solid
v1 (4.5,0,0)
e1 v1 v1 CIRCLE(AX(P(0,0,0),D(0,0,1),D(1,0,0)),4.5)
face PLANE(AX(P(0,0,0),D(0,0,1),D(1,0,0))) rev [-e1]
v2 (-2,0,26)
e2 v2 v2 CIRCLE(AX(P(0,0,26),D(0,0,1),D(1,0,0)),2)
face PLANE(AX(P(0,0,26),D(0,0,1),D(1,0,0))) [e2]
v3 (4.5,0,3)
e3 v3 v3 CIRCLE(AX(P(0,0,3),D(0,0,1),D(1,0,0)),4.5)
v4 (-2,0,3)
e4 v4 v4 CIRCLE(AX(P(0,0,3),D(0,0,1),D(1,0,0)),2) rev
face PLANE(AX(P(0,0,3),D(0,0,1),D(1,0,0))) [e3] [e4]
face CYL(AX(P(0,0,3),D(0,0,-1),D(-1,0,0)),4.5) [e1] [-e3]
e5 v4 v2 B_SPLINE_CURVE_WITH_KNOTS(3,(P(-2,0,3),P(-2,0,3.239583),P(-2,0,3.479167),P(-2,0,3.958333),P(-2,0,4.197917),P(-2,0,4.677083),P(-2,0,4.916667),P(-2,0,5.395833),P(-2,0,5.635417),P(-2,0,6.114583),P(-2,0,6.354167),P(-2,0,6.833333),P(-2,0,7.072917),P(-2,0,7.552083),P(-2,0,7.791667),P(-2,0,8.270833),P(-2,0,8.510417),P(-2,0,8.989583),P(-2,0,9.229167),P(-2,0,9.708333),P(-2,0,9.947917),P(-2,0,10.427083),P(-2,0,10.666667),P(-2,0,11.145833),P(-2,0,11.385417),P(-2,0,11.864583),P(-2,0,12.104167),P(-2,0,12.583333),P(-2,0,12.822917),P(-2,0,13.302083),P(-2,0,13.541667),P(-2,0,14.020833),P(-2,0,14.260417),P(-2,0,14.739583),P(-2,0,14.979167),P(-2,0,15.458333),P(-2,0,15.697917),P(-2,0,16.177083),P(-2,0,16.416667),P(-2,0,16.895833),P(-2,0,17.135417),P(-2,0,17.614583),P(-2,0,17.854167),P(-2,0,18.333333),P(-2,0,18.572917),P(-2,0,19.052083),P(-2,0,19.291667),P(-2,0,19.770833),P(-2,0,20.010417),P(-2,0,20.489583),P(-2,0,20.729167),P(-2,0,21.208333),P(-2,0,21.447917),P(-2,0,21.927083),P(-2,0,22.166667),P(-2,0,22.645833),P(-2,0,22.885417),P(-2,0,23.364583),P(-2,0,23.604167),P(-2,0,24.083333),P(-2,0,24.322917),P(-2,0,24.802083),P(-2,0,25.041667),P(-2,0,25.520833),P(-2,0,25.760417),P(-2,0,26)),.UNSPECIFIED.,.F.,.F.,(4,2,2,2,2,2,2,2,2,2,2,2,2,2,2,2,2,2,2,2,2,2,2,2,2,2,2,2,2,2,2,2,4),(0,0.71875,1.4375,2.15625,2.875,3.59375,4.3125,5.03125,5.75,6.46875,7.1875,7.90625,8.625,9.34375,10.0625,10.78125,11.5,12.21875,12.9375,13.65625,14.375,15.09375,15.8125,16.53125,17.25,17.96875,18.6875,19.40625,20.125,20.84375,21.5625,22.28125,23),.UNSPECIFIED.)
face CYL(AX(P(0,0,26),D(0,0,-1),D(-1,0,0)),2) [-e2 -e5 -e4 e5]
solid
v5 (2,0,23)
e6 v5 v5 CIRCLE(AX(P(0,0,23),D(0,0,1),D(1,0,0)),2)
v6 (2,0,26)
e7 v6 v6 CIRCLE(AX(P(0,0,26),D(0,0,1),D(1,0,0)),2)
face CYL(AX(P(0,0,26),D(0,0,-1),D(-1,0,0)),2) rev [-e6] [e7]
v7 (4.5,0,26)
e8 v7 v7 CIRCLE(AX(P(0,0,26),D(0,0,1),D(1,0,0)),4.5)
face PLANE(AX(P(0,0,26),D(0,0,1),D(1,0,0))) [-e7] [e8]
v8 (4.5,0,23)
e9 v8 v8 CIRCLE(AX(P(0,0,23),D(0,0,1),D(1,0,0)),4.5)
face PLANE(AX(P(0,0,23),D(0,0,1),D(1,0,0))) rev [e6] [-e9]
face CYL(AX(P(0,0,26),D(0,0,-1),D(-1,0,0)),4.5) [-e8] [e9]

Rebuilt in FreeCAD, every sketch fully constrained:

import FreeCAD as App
import Part
import Sketcher

V = App.Vector
Q = App.Units.Quantity

doc = App.newDocument("Part")
body = doc.addObject("PartDesign::Body", "Body")

# Sketch on XY plane
sketch1 = body.newObject("Sketcher::SketchObject", "Sketch")
sketch1.AttachmentSupport = (doc.getObject("XY_Plane"), [""])
sketch1.MapMode = "FlatFace"
sketch1.addGeometry(Part.Circle(V(0, 0, 0), V(0, 0, 1), 4.5), False)
sketch1.addConstraint([
    Sketcher.Constraint("Coincident", 0, 3, -1, 1),
    Sketcher.Constraint("Diameter", 0, Q("9 mm")),
])
pad1 = body.newObject("PartDesign::Pad", "Pad")
pad1.Profile = sketch1
pad1.Length = 3

# Sketch on XY plane
sketch2 = body.newObject("Sketcher::SketchObject", "Sketch001")
sketch2.AttachmentSupport = (doc.getObject("XY_Plane"), [""])
sketch2.MapMode = "FlatFace"
sketch2.addGeometry(Part.Circle(V(0, 0, 0), V(0, 0, 1), 2), False)
sketch2.addConstraint([
    Sketcher.Constraint("Coincident", 0, 3, -1, 1),
    Sketcher.Constraint("Diameter", 0, Q("4 mm")),
])
pad2 = body.newObject("PartDesign::Pad", "Pad001")
pad2.Profile = sketch2
pad2.Length = 26
body2 = doc.addObject("PartDesign::Body", "Body001")

# Sketch on XY plane
sketch3 = body2.newObject("Sketcher::SketchObject", "Sketch002")
sketch3.AttachmentSupport = (doc.getObject("XY_Plane001"), [""])
sketch3.MapMode = "FlatFace"
sketch3.AttachmentOffset = App.Placement(V(0, 0, 23), App.Rotation())
sketch3.addGeometry([
    Part.Circle(V(0, 0, 0), V(0, 0, 1), 4.5),
    Part.Circle(V(0, 0, 0), V(0, 0, 1), 2),
], False)
sketch3.addConstraint([
    Sketcher.Constraint("Coincident", 0, 3, -1, 1),
    Sketcher.Constraint("Coincident", 1, 3, -1, 1),
    Sketcher.Constraint("Diameter", 0, Q("9 mm")),
    Sketcher.Constraint("Diameter", 1, Q("4 mm")),
])
pad3 = body2.newObject("PartDesign::Pad", "Pad002")
pad3.Profile = sketch3
pad3.Length = 3

doc.recompute()
